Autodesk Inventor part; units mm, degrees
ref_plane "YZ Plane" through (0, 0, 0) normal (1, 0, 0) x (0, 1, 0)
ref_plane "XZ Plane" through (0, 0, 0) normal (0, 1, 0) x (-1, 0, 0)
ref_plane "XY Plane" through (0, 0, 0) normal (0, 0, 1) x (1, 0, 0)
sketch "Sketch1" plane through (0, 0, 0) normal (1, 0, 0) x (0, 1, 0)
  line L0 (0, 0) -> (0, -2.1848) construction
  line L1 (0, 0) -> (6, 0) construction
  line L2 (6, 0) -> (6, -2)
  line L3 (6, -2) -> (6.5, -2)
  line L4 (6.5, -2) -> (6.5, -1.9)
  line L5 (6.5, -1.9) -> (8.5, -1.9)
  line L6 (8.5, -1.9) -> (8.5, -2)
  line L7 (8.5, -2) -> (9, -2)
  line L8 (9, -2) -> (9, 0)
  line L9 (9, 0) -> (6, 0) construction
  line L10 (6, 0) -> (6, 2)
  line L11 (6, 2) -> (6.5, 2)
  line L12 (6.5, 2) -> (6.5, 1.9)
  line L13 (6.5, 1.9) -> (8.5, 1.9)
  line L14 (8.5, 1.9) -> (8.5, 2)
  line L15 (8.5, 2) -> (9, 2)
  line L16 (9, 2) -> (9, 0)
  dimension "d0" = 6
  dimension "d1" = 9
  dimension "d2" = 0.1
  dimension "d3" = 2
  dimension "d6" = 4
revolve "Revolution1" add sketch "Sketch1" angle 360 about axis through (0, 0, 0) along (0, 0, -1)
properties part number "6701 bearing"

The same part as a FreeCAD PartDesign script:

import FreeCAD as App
import Part
import Sketcher

V = App.Vector

doc = App.newDocument("Part")
body = doc.addObject("PartDesign::Body", "Body")

sketch1 = doc.addObject("Sketcher::SketchObject", "Sketch")
body.addObject(sketch1)
sketch1.AttachmentSupport = (doc.YZ_Plane, [""])
sketch1.MapMode = "FlatFace"
sketch1.addGeometry([
    Part.LineSegment(V(6, 2, 0), V(6, -2, 0)),
    Part.LineSegment(V(6, -2, 0), V(6.5, -2, 0)),
    Part.LineSegment(V(6.5, -2, 0), V(6.5, -1.9, 0)),
    Part.LineSegment(V(6.5, -1.9, 0), V(8.5, -1.9, 0)),
    Part.LineSegment(V(8.5, -1.9, 0), V(8.5, -2, 0)),
    Part.LineSegment(V(8.5, -2, 0), V(9, -2, 0)),
    Part.LineSegment(V(9, -2, 0), V(9, 2, 0)),
    Part.LineSegment(V(9, 2, 0), V(8.5, 2, 0)),
    Part.LineSegment(V(8.5, 2, 0), V(8.5, 1.9, 0)),
    Part.LineSegment(V(8.5, 1.9, 0), V(6.5, 1.9, 0)),
    Part.LineSegment(V(6.5, 1.9, 0), V(6.5, 2, 0)),
    Part.LineSegment(V(6.5, 2, 0), V(6, 2, 0)),
], False)
sketch1.addConstraint([
    Sketcher.Constraint("Coincident", 0, 2, 1, 1),
    Sketcher.Constraint("Coincident", 1, 2, 2, 1),
    Sketcher.Constraint("Coincident", 2, 2, 3, 1),
    Sketcher.Constraint("Coincident", 3, 2, 4, 1),
    Sketcher.Constraint("Coincident", 4, 2, 5, 1),
    Sketcher.Constraint("Coincident", 5, 2, 6, 1),
    Sketcher.Constraint("Coincident", 6, 2, 7, 1),
    Sketcher.Constraint("Coincident", 7, 2, 8, 1),
    Sketcher.Constraint("Coincident", 8, 2, 9, 1),
    Sketcher.Constraint("Coincident", 9, 2, 10, 1),
    Sketcher.Constraint("Coincident", 10, 2, 11, 1),
    Sketcher.Constraint("Coincident", 11, 2, 0, 1),
    Sketcher.Constraint("Vertical", 0),
    Sketcher.Constraint("Horizontal", 1),
    Sketcher.Constraint("Vertical", 2),
    Sketcher.Constraint("Horizontal", 3),
    Sketcher.Constraint("Vertical", 4),
    Sketcher.Constraint("Horizontal", 5),
    Sketcher.Constraint("Vertical", 6),
    Sketcher.Constraint("Horizontal", 7),
    Sketcher.Constraint("Vertical", 8),
    Sketcher.Constraint("Horizontal", 9),
    Sketcher.Constraint("Vertical", 10),
    Sketcher.Constraint("Horizontal", 11),
    Sketcher.Constraint("Symmetric", 4, 2, 7, 2, -1),
    Sketcher.Constraint("Symmetric", 2, 2, 9, 2, -1),
    Sketcher.Constraint("Horizontal", 1, 2, 4, 2),
    Sketcher.Constraint("Horizontal", 7, 2, 10, 2),
    Sketcher.Constraint("Equal", 1, 5),
    Sketcher.Constraint("DistanceX", 3, 1, 3, 2, 2.0),
    Sketcher.Constraint("DistanceY", 0, 2, 0, 1, 4.0),
    Sketcher.Constraint("DistanceY", 2, 1, 2, 2, 0.1),
    Sketcher.Constraint("DistanceX", -1, 1, 0, 2, 6.0),
    Sketcher.Constraint("DistanceX", -1, 1, 5, 2, 9.0),
])
revolution = doc.addObject("PartDesign::Revolution", "Revolution")
body.addObject(revolution)
revolution.Profile = sketch1
revolution.ReferenceAxis = (sketch1, ["V_Axis"])
revolution.Angle = 360

doc.recompute()
